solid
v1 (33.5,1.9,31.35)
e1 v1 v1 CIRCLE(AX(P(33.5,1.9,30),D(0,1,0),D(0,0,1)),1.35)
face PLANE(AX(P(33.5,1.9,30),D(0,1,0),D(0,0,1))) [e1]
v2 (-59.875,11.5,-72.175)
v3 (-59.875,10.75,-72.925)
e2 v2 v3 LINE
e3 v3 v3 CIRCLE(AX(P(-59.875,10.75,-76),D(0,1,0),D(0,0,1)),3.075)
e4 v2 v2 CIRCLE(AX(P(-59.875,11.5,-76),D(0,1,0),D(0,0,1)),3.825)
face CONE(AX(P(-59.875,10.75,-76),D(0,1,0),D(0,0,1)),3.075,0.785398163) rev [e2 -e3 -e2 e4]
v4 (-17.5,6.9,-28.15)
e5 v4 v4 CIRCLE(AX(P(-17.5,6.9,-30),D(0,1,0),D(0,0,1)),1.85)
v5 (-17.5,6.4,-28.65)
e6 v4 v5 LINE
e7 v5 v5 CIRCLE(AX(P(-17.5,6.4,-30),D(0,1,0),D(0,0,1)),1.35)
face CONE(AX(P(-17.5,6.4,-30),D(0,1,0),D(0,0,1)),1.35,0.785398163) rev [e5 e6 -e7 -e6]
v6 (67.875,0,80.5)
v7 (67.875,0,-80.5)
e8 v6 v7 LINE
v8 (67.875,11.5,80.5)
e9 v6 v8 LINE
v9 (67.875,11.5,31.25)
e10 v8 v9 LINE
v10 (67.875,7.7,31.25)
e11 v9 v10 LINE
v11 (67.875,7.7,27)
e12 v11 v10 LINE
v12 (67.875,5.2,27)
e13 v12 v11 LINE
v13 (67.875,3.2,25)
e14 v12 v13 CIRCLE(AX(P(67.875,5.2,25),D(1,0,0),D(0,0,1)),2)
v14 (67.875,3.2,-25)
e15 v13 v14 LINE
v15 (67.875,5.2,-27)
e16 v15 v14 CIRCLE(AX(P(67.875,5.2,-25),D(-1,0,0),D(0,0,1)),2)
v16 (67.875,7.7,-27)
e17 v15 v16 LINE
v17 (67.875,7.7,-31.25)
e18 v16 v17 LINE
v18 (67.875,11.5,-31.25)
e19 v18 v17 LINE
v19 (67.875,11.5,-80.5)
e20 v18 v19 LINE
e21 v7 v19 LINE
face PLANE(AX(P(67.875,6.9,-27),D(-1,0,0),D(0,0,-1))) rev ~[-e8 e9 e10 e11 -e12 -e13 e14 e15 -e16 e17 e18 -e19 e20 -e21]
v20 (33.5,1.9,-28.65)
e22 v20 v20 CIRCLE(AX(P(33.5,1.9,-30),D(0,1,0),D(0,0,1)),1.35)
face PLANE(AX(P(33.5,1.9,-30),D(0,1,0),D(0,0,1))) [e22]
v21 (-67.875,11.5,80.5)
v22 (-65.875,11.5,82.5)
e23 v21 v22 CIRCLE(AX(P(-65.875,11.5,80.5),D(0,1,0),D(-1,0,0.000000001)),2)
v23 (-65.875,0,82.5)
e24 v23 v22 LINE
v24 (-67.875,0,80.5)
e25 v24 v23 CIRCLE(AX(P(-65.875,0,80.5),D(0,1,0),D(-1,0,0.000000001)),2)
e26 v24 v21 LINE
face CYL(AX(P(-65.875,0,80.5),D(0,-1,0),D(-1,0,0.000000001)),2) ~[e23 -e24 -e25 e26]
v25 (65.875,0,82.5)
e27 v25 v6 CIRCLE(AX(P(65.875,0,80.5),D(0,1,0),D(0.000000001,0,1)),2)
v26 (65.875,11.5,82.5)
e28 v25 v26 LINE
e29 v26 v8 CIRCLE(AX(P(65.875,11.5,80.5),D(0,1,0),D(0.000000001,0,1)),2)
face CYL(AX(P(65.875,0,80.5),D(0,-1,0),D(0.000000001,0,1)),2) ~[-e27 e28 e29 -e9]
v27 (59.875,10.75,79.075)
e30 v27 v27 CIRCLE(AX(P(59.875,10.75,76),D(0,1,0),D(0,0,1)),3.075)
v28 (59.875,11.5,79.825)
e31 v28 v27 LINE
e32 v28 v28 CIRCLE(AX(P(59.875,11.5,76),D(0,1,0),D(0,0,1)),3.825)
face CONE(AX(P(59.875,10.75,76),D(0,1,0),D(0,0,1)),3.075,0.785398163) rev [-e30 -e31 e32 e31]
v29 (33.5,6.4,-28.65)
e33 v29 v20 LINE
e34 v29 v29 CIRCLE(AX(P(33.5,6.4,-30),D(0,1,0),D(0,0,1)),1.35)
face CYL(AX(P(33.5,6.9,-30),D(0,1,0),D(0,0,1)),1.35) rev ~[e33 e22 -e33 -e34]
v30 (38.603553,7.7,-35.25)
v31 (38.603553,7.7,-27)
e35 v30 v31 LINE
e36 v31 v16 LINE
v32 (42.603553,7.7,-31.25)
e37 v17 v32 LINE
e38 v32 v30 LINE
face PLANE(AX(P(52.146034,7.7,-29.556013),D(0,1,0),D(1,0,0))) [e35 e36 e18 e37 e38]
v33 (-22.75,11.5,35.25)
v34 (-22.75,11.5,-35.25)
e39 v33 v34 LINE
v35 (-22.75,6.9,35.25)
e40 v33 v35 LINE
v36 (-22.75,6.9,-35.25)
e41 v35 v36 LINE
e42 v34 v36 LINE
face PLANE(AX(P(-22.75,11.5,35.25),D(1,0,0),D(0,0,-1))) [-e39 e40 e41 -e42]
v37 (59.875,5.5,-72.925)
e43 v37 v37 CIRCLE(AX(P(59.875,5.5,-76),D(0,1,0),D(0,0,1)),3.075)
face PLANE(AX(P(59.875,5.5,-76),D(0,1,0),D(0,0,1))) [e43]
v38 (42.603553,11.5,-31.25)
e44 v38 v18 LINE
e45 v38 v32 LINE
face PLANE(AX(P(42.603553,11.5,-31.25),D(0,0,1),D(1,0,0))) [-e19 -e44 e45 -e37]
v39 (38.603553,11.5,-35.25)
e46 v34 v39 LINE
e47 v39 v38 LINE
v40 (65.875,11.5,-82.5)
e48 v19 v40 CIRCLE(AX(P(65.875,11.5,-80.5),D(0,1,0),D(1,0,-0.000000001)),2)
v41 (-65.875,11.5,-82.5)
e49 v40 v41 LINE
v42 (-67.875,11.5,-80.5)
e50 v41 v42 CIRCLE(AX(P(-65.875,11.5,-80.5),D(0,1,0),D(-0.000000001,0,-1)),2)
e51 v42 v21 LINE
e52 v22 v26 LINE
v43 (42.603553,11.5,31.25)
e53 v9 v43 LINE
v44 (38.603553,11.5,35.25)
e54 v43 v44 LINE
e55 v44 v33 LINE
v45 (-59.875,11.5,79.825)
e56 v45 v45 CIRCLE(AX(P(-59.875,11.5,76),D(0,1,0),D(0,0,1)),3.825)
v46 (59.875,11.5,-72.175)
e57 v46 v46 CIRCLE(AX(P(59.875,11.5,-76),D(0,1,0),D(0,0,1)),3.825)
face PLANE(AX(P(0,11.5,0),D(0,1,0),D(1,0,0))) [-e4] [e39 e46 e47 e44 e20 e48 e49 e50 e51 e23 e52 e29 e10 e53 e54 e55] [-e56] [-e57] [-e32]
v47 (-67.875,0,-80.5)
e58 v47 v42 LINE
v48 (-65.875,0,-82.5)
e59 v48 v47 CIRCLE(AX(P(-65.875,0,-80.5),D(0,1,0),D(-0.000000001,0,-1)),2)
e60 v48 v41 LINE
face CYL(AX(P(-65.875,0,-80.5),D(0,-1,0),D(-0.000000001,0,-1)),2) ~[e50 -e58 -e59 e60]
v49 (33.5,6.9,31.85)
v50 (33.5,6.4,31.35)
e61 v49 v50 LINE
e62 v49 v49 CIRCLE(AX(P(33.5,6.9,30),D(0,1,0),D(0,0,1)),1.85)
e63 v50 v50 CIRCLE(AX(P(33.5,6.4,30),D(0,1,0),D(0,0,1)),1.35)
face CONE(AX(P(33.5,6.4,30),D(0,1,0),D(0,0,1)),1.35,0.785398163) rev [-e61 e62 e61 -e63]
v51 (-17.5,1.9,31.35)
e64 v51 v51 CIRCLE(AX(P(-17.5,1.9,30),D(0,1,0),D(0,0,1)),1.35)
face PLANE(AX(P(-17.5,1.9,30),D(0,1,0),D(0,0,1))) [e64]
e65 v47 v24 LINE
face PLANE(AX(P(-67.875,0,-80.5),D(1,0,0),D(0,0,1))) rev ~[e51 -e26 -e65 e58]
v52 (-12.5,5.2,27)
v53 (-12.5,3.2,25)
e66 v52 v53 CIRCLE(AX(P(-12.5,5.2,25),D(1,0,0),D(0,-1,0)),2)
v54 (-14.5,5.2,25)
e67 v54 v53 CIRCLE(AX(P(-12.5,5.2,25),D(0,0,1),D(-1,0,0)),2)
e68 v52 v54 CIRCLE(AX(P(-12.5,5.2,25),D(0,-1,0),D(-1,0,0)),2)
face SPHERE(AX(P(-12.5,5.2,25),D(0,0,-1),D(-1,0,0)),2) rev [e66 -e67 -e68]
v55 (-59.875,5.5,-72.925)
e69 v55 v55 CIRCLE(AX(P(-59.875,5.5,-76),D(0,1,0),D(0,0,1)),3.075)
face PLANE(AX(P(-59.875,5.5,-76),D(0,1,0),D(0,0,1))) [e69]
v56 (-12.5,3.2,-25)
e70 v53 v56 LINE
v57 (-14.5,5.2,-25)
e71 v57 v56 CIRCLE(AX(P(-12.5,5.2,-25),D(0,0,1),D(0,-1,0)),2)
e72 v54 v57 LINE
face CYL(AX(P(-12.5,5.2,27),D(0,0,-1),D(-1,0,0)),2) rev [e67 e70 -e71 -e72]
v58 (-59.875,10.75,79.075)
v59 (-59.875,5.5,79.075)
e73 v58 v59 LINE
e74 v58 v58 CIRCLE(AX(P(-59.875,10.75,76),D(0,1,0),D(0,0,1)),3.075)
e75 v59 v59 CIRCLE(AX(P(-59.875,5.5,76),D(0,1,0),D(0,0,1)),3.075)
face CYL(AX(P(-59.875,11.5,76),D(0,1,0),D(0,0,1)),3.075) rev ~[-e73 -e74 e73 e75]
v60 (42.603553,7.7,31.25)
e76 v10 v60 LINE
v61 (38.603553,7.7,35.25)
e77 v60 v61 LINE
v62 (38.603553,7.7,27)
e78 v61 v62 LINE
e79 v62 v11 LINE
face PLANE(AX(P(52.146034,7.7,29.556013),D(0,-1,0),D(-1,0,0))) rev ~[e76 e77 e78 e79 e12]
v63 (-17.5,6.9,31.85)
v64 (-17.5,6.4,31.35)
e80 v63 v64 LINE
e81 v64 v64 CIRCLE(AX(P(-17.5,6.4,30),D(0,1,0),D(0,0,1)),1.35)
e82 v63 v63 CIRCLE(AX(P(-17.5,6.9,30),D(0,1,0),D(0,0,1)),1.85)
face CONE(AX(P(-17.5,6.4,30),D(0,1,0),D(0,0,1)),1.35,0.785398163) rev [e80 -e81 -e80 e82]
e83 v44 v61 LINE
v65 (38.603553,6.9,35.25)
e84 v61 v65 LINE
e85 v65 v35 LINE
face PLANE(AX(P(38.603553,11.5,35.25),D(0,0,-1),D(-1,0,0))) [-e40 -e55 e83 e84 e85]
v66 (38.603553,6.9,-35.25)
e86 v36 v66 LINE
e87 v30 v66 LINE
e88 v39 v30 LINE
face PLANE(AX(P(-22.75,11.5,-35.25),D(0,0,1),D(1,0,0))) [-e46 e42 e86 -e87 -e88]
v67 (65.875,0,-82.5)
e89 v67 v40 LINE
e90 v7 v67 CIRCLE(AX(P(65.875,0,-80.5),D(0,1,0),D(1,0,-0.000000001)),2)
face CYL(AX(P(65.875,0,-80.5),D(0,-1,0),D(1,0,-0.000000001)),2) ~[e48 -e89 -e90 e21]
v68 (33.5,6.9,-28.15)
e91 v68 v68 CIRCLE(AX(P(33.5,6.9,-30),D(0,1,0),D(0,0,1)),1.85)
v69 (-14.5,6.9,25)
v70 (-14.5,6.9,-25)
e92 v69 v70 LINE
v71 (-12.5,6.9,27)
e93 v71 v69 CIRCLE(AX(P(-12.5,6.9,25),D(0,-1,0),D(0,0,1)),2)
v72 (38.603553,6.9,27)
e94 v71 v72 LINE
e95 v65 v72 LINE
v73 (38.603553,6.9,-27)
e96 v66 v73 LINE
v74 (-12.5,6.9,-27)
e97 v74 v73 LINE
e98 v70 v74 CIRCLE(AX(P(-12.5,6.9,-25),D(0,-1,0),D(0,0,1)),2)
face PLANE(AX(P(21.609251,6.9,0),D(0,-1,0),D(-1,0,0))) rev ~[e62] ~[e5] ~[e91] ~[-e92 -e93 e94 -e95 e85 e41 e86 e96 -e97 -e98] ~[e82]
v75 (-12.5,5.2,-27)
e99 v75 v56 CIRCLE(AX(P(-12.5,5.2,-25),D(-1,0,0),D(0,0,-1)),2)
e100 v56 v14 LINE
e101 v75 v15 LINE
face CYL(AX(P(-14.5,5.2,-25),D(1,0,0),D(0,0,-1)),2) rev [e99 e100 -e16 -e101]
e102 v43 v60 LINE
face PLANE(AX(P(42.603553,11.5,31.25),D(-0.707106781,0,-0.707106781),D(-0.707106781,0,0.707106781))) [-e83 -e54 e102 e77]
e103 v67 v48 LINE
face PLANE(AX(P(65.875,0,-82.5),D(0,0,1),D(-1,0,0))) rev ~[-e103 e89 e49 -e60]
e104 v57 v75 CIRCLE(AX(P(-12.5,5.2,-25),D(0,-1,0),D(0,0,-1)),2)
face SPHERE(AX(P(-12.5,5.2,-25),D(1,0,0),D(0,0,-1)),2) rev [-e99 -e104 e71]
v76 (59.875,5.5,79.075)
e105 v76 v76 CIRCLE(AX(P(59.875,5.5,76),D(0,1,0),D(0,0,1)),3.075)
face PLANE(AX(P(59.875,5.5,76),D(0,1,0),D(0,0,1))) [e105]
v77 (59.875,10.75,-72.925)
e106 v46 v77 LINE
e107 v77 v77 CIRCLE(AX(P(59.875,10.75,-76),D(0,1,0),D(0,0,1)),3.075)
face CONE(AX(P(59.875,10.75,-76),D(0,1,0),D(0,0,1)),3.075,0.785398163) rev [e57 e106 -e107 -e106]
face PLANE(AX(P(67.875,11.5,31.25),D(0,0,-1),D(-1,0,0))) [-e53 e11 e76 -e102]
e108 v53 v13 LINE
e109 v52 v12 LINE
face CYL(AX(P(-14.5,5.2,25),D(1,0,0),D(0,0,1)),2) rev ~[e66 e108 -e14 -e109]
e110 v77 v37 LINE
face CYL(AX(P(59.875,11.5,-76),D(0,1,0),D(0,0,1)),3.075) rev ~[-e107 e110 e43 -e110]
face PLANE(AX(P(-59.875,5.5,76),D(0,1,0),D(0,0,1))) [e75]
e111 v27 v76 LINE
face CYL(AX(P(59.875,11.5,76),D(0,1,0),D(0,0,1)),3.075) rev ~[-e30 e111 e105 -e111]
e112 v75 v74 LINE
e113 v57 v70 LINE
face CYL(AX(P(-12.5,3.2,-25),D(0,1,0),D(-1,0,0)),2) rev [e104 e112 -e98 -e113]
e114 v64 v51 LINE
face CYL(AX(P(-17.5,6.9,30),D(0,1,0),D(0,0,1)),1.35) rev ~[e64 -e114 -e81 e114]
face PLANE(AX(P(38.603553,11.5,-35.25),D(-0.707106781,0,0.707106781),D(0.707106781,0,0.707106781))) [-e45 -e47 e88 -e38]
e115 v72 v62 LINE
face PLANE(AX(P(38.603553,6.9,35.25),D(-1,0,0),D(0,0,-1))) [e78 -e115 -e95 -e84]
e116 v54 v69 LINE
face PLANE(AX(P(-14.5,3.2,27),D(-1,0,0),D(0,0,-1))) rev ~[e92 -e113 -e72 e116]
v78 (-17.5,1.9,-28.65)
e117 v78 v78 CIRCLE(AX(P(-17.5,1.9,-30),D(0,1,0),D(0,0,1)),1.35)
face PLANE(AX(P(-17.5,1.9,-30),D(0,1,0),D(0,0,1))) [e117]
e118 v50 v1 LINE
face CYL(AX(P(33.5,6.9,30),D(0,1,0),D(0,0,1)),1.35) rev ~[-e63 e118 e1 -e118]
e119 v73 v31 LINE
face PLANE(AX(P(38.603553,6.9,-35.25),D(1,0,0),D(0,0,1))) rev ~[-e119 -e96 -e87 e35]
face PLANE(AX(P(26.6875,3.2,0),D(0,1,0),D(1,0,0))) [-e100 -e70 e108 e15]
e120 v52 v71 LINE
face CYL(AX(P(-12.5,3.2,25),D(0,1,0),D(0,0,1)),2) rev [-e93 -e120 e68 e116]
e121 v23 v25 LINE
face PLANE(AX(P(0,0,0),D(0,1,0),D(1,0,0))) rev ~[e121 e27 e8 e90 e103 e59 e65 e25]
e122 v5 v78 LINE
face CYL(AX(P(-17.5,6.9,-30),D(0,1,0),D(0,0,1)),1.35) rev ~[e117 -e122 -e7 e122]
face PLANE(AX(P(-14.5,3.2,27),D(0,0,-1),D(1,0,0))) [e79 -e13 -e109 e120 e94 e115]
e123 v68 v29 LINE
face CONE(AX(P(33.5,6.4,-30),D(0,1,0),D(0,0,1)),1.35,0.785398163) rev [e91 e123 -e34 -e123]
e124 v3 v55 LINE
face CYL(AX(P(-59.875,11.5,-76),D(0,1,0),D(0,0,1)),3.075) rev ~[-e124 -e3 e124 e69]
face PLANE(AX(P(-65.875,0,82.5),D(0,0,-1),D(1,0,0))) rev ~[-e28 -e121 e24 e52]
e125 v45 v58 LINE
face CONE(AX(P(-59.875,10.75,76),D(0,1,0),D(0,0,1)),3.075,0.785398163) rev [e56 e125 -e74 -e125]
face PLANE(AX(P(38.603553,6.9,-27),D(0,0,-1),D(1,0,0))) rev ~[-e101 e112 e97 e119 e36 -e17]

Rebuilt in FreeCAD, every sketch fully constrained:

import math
import FreeCAD as App
import Part
import Sketcher
Q = App.Units.Quantity


def edges_at(feature, points):
    """Names of the edges that pass closest to the given points."""
    edges = feature.Shape.Edges
    near = lambda p: min(range(len(edges)), key=lambda i: edges[i].distToShape(Part.Vertex(*p))[0])
    return sorted({f"Edge{near(p) + 1}" for p in points})


def add_polygon(sketch, points):
    """Adds a closed chain of lines whose ends are joined by coincident constraints."""
    first, n = sketch.GeometryCount, len(points)
    for a, b in zip(points, points[1:] + points[:1]):
        sketch.addGeometry(Part.LineSegment(App.Vector(*a, 0), App.Vector(*b, 0)), False)
    for i in range(n):
        sketch.addConstraint(Sketcher.Constraint("Coincident", first + i, 2, first + (i + 1) % n, 1))

doc = App.newDocument("Part")
body = doc.addObject("PartDesign::Body", "Body")

# Sketch on XZ plane
sketch1 = doc.addObject("Sketcher::SketchObject", "Sketch")
body.addObject(sketch1)
sketch1.AttachmentSupport = (doc.XZ_Plane, [""])
sketch1.MapMode = "FlatFace"
sketch1.addGeometry([
    Part.ArcOfCircle(Part.Circle(App.Vector(-65.9, 80.5, 0), App.Vector(0, 0, 1), 2), math.radians(90), math.radians(180)),  # 0
    Part.LineSegment(App.Vector(-65.9, 82.5, 0), App.Vector(65.9, 82.5, 0)),  # 1
    Part.ArcOfCircle(Part.Circle(App.Vector(65.9, 80.5, 0), App.Vector(0, 0, 1), 2), math.radians(0), math.radians(90)),  # 2
    Part.LineSegment(App.Vector(67.9, 80.5, 0), App.Vector(67.9, -80.5, 0)),  # 3
    Part.ArcOfCircle(Part.Circle(App.Vector(65.9, -80.5, 0), App.Vector(0, 0, 1), 2), math.radians(-90), math.radians(0)),  # 4
    Part.LineSegment(App.Vector(65.9, -82.5, 0), App.Vector(-65.9, -82.5, 0)),  # 5
    Part.ArcOfCircle(Part.Circle(App.Vector(-65.9, -80.5, 0), App.Vector(0, 0, 1), 2), math.radians(-180), math.radians(-90)),  # 6
    Part.LineSegment(App.Vector(-67.9, -80.5, 0), App.Vector(-67.9, 80.5, 0)),  # 7
], False)
sketch1.addConstraint([
    Sketcher.Constraint("Tangent", 0, 1, 1, 1),
    Sketcher.Constraint("Tangent", 1, 2, 2, 2),
    Sketcher.Constraint("Tangent", 2, 1, 3, 1),
    Sketcher.Constraint("Tangent", 3, 2, 4, 2),
    Sketcher.Constraint("Tangent", 4, 1, 5, 1),
    Sketcher.Constraint("Tangent", 5, 2, 6, 2),
    Sketcher.Constraint("Tangent", 6, 1, 7, 1),
    Sketcher.Constraint("Tangent", 7, 2, 0, 2),
    Sketcher.Constraint("Horizontal", 1),
    Sketcher.Constraint("Vertical", 3),
    Sketcher.Constraint("Horizontal", 5),
    Sketcher.Constraint("Vertical", 7),
    Sketcher.Constraint("Equal", 0, 2),
    Sketcher.Constraint("Equal", 2, 4),
    Sketcher.Constraint("Equal", 4, 6),
    Sketcher.Constraint("Symmetric", 0, 3, 4, 3, -1, 1),
    Sketcher.Constraint("Radius", 0, Q("2 mm")),
    Sketcher.Constraint("DistanceY", 3, 2, 3, 1, Q("161 mm")),
    Sketcher.Constraint("DistanceX", 1, 1, 1, 2, Q("131.75 mm")),
])
pad1 = doc.addObject("PartDesign::Pad", "Pad")
body.addObject(pad1)
pad1.Profile = sketch1
pad1.Length = 11.5
pad1.Reversed = True

# Sketch on XZ plane
sketch2 = doc.addObject("Sketcher::SketchObject", "Sketch001")
body.addObject(sketch2)
sketch2.AttachmentSupport = (doc.XZ_Plane, [""])
sketch2.MapMode = "FlatFace"
sketch2.AttachmentOffset = App.Placement(App.Vector(0, 0, -11.5), App.Rotation())
sketch2.addGeometry([
    Part.Circle(App.Vector(-59.9, 76, 0), App.Vector(0, 0, 1), 3.1),
    Part.Circle(App.Vector(59.9, 76, 0), App.Vector(0, 0, 1), 3.1),
    Part.Circle(App.Vector(59.9, -76, 0), App.Vector(0, 0, 1), 3.1),
    Part.Circle(App.Vector(-59.9, -76, 0), App.Vector(0, 0, 1), 3.1),
], False)
sketch2.addConstraint([
    Sketcher.Constraint("Equal", 0, 1),
    Sketcher.Constraint("Equal", 1, 2),
    Sketcher.Constraint("Equal", 2, 3),
    Sketcher.Constraint("Symmetric", 0, 3, 2, 3, -1, 1),
    Sketcher.Constraint("Symmetric", 1, 3, 3, 3, -1, 1),
    Sketcher.Constraint("Symmetric", 0, 3, 1, 3, -2),
    Sketcher.Constraint("Diameter", 0, Q("6.15 mm")),
    Sketcher.Constraint("DistanceY", -1, 1, 0, 3, Q("76 mm")),
    Sketcher.Constraint("DistanceX", 0, 3, 1, 3, Q("119.75 mm")),
])
pocket1 = doc.addObject("PartDesign::Pocket", "Pocket")
body.addObject(pocket1)
pocket1.Profile = sketch2
pocket1.Length = 6
pocket1.Reversed = True

# Sketch on XZ plane
sketch3 = doc.addObject("Sketcher::SketchObject", "Sketch002")
body.addObject(sketch3)
sketch3.AttachmentSupport = (doc.XZ_Plane, [""])
sketch3.MapMode = "FlatFace"
sketch3.AttachmentOffset = App.Placement(App.Vector(0, 0, -11.5), App.Rotation())
add_polygon(sketch3, [(68, 31), (68, -31), (43, -31), (39, -35), (-23, -35), (-23, 35), (39, 35), (43, 31)])  # lines 0-7
sketch3.addConstraint([
    Sketcher.Constraint("Vertical", 0),
    Sketcher.Constraint("Horizontal", 1),
    Sketcher.Constraint("Horizontal", 3),
    Sketcher.Constraint("Vertical", 4),
    Sketcher.Constraint("Horizontal", 5),
    Sketcher.Constraint("Horizontal", 7),
    Sketcher.Constraint("Symmetric", 2, 2, 5, 2, -1),
    Sketcher.Constraint("Symmetric", 1, 2, 6, 2, -1),
    Sketcher.Constraint("Perpendicular", 2, 6),
    Sketcher.Constraint("DistanceY", 0, 2, 0, 1, Q("62.5 mm")),
    Sketcher.Constraint("DistanceY", 4, 1, 4, 2, Q("70.5 mm")),
    Sketcher.Constraint("DistanceX", 3, 2, -1, 1, Q("22.75 mm")),
    Sketcher.Constraint("DistanceX", -1, 1, 0, 2, Q("67.875 mm")),
    Sketcher.Constraint("DistanceX", 1, 2, 1, 1, Q("25.271447 mm")),
])
pocket2 = doc.addObject("PartDesign::Pocket", "Pocket001")
body.addObject(pocket2)
pocket2.Profile = sketch3
pocket2.Length = 4.6
pocket2.Reversed = True

# Sketch on XZ plane
sketch4 = doc.addObject("Sketcher::SketchObject", "Sketch003")
body.addObject(sketch4)
sketch4.AttachmentSupport = (doc.XZ_Plane, [""])
sketch4.MapMode = "FlatFace"
sketch4.AttachmentOffset = App.Placement(App.Vector(0, 0, -6.9), App.Rotation())
add_polygon(sketch4, [(-14, -27), (-14, 27), (68, 27), (68, -27)])  # lines 0-3
sketch4.addConstraint([
    Sketcher.Constraint("Vertical", 0),
    Sketcher.Constraint("Horizontal", 1),
    Sketcher.Constraint("Vertical", 2),
    Sketcher.Constraint("Horizontal", 3),
    Sketcher.Constraint("DistanceY", 0, 1, 0, 2, Q("54 mm")),
    Sketcher.Constraint("DistanceY", -1, 1, 0, 2, Q("27 mm")),
    Sketcher.Constraint("DistanceX", 0, 2, -1, 1, Q("14.5 mm")),
    Sketcher.Constraint("DistanceX", 1, 1, 1, 2, Q("82.375 mm")),
])
pocket3 = doc.addObject("PartDesign::Pocket", "Pocket002")
body.addObject(pocket3)
pocket3.Profile = sketch4
pocket3.Type = "TwoLengths"
pocket3.Length = 108.055479
pocket3.Length2 = 3.7

# Sketch on XZ plane
sketch5 = doc.addObject("Sketcher::SketchObject", "Sketch004")
body.addObject(sketch5)
sketch5.AttachmentSupport = (doc.XZ_Plane, [""])
sketch5.MapMode = "FlatFace"
sketch5.AttachmentOffset = App.Placement(App.Vector(0, 0, -6.9), App.Rotation())
sketch5.addGeometry([
    Part.Circle(App.Vector(33.5, -30, 0), App.Vector(0, 0, 1), 1.4),
    Part.Circle(App.Vector(-17.5, -30, 0), App.Vector(0, 0, 1), 1.4),
    Part.Circle(App.Vector(33.5, 30, 0), App.Vector(0, 0, 1), 1.4),
    Part.Circle(App.Vector(-17.5, 30, 0), App.Vector(0, 0, 1), 1.4),
], False)
sketch5.addConstraint([
    Sketcher.Constraint("Equal", 0, 1),
    Sketcher.Constraint("Equal", 1, 2),
    Sketcher.Constraint("Equal", 2, 3),
    Sketcher.Constraint("Symmetric", 0, 3, 2, 3, -1),
    Sketcher.Constraint("Symmetric", 1, 3, 3, 3, -1),
    Sketcher.Constraint("Horizontal", 0, 3, 1, 3),
    Sketcher.Constraint("Diameter", 0, Q("2.7 mm")),
    Sketcher.Constraint("DistanceY", 0, 3, -1, 1, Q("30 mm")),
    Sketcher.Constraint("DistanceX", 1, 3, 0, 3, Q("51 mm")),
    Sketcher.Constraint("DistanceX", -1, 1, 0, 3, Q("33.5 mm")),
])
pocket4 = doc.addObject("PartDesign::Pocket", "Pocket003")
body.addObject(pocket4)
pocket4.Profile = sketch5
pocket4.Length = 5
pocket4.Reversed = True
doc.recompute()

chamfer = doc.addObject("PartDesign::Chamfer", "Chamfer")
body.addObject(chamfer)
chamfer.Base = (pocket4, edges_at(pocket4, [
    (-17.5, 6.9, -31.35),
    (33.5, 6.9, 28.65),
    (-17.5, 6.9, 28.65),
    (33.5, 6.9, -31.35),
]))
chamfer.Size = 0.5
doc.recompute()

fillet = doc.addObject("PartDesign::Fillet", "Fillet")
body.addObject(fillet)
fillet.Base = (chamfer, edges_at(chamfer, [
    (26.688, 3.2, -27),
    (-14.5, 5.05, -27),
    (-14.5, 3.2, 0),
    (-14.5, 5.05, 27),
    (26.688, 3.2, 27),
]))
fillet.Radius = 2

# Sketch on XZ plane
sketch6 = doc.addObject("Sketcher::SketchObject", "Sketch005")
body.addObject(sketch6)
sketch6.AttachmentSupport = (doc.XZ_Plane, [""])
sketch6.MapMode = "FlatFace"
sketch6.AttachmentOffset = App.Placement(App.Vector(0, 0, -6.9), App.Rotation())
add_polygon(sketch6, [(38.6, -35.2), (38.6, -27), (67.9, -27), (67.9, -31.2), (42.6, -31.2)])  # lines 0-4
add_polygon(sketch6, [(38.6, 35.2), (42.6, 31.2), (67.9, 31.2), (67.9, 27), (38.6, 27)])  # lines 5-9
sketch6.addConstraint([
    Sketcher.Constraint("Vertical", 0),
    Sketcher.Constraint("Horizontal", 1),
    Sketcher.Constraint("Vertical", 2),
    Sketcher.Constraint("Horizontal", 3),
    Sketcher.Constraint("Horizontal", 6),
    Sketcher.Constraint("Vertical", 7),
    Sketcher.Constraint("Horizontal", 8),
    Sketcher.Constraint("Vertical", 9),
    Sketcher.Constraint("Symmetric", 3, 2, 5, 2, -1),
    Sketcher.Constraint("Symmetric", 1, 2, 7, 2, -1),
    Sketcher.Constraint("Symmetric", 4, 2, 9, 2, -1),
    Sketcher.Constraint("Perpendicular", 4, 5),
    Sketcher.Constraint("DistanceY", 0, 2, -1, 1, Q("27 mm")),
    Sketcher.Constraint("DistanceX", 0, 2, 3, 2, Q("4 mm")),
    Sketcher.Constraint("DistanceY", 0, 1, 0, 2, Q("8.25 mm")),
    Sketcher.Constraint("DistanceX", -1, 1, 1, 2, Q("67.875 mm")),
    Sketcher.Constraint("DistanceX", 1, 1, 1, 2, Q("29.271447 mm")),
])
pad2 = doc.addObject("PartDesign::Pad", "Pad001")
body.addObject(pad2)
pad2.Profile = sketch6
pad2.Length = 0.8
pad2.Reversed = True
doc.recompute()

chamfer2 = doc.addObject("PartDesign::Chamfer", "Chamfer001")
body.addObject(chamfer2)
chamfer2.Base = (pad2, edges_at(pad2, [
    (-59.875, 11.5, -79.075),
    (59.875, 11.5, -79.075),
    (59.875, 11.5, 72.925),
    (-59.875, 11.5, 72.925),
]))
chamfer2.Size = 0.75

doc.recompute()
